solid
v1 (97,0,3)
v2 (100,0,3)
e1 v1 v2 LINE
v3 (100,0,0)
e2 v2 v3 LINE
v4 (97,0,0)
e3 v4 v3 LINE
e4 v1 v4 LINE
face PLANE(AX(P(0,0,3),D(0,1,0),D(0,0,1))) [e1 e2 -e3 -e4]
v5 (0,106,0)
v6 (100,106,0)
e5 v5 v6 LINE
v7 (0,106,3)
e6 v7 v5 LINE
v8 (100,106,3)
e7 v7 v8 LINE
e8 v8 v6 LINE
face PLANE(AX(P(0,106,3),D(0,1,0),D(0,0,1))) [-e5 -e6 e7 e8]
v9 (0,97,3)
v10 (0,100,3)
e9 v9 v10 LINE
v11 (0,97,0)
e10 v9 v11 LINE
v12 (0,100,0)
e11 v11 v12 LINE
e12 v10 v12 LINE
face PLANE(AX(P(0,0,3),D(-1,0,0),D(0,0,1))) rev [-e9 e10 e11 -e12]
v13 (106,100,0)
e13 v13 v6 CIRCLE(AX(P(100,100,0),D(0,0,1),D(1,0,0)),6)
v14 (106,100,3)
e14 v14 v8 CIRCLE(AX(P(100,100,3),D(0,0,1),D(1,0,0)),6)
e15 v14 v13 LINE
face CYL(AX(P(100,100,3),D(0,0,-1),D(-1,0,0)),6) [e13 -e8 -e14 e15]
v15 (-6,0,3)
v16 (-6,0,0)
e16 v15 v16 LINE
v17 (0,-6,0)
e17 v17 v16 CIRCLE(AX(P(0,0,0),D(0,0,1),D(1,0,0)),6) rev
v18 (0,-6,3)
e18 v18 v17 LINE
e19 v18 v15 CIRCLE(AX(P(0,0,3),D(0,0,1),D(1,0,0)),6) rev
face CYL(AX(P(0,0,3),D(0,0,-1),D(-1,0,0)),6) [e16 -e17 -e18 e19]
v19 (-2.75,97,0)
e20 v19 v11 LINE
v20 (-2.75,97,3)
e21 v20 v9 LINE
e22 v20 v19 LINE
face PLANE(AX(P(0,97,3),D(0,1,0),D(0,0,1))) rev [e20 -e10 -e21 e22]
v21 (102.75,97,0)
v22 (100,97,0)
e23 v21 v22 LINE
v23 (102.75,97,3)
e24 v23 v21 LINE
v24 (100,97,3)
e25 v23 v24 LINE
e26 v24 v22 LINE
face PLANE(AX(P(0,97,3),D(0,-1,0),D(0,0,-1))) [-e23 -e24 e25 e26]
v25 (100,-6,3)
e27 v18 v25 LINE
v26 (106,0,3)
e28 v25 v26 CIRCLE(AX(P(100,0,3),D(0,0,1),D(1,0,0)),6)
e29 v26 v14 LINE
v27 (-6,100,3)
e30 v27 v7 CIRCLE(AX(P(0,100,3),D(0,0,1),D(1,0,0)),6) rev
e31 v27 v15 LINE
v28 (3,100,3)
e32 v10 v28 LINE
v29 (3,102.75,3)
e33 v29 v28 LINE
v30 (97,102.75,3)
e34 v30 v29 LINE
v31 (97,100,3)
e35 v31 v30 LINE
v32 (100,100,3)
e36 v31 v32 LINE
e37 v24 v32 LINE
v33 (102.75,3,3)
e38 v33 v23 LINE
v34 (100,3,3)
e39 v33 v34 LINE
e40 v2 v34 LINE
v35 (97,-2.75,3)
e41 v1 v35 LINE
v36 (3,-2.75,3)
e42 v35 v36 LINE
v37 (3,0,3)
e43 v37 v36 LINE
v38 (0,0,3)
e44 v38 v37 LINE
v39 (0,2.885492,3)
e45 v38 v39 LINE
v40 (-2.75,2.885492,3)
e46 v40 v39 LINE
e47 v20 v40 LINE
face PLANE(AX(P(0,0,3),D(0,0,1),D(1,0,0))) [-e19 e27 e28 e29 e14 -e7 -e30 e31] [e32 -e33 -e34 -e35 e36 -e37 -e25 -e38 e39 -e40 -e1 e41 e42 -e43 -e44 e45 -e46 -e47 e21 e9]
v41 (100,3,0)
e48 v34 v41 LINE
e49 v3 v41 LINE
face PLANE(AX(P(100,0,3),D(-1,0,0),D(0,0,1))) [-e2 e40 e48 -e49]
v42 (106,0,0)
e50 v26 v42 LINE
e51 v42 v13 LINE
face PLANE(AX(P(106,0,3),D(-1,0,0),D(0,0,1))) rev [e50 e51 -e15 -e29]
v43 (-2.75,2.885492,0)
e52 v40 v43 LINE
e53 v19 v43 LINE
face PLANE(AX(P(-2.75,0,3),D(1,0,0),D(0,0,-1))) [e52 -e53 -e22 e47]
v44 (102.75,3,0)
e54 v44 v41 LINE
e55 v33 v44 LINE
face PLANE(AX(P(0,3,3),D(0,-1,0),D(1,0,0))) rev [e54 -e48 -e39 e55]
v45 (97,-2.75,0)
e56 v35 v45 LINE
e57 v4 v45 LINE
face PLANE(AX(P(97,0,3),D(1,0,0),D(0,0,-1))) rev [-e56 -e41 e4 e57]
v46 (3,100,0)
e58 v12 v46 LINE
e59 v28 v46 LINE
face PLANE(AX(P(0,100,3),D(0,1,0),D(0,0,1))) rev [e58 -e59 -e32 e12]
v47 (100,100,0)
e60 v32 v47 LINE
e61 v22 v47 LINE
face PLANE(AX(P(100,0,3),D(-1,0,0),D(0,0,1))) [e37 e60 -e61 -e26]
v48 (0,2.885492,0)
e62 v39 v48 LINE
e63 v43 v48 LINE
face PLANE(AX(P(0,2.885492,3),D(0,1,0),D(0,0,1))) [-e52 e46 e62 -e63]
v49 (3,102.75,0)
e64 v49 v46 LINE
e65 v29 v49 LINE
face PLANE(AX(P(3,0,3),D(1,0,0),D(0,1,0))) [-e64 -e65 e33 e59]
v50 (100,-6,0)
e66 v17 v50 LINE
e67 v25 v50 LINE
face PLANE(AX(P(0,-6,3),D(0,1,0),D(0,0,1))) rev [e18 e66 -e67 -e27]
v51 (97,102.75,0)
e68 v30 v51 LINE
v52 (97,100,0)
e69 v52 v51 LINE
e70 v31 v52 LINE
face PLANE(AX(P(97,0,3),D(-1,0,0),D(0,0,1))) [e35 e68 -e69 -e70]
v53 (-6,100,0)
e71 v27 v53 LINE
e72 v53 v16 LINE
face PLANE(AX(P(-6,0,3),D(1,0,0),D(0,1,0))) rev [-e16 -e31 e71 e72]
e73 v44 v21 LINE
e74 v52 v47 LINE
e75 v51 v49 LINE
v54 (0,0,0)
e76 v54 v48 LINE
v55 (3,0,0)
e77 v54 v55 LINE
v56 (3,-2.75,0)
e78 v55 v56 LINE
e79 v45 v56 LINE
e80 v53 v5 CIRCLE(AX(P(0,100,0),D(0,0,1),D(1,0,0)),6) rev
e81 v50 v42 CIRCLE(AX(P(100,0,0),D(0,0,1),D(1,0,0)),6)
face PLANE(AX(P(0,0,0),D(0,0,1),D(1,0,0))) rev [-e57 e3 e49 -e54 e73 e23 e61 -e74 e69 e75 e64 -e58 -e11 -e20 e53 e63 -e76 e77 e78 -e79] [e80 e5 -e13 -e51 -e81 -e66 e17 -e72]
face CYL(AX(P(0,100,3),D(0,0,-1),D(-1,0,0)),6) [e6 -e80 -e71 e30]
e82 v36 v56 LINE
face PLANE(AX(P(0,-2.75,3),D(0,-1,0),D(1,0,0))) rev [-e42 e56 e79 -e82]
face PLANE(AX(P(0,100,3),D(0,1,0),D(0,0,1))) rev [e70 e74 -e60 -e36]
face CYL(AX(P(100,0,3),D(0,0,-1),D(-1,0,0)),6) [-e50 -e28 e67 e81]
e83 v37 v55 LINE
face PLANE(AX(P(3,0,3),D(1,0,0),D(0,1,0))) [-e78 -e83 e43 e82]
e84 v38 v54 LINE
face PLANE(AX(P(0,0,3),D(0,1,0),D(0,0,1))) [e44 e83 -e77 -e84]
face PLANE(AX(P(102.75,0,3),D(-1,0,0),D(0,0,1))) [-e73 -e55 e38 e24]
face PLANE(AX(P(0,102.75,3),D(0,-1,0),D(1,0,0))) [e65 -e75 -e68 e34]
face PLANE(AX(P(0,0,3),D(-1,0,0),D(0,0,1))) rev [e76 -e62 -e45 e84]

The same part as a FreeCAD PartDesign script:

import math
import FreeCAD as App
import Part
import Sketcher
from FreeCAD import Vector


def add_polygon(sketch, points):
    """Adds a closed chain of lines whose ends are joined by coincident constraints."""
    first, n = sketch.GeometryCount, len(points)
    for a, b in zip(points, points[1:] + points[:1]):
        sketch.addGeometry(Part.LineSegment(App.Vector(*a, 0), App.Vector(*b, 0)), False)
    for i in range(n):
        sketch.addConstraint(Sketcher.Constraint("Coincident", first + i, 2, first + (i + 1) % n, 1))

doc = App.newDocument("Part")
body = doc.addObject("PartDesign::Body", "Body")

sketch1 = body.newObject("Sketcher::SketchObject", "Sketch")
sketch1.AttachmentSupport = (doc.getObject("XY_Plane"), [""])
sketch1.MapMode = "FlatFace"
sketch1.addGeometry(Part.ArcOfCircle(Part.Circle(Vector(0, 0, 0), Vector(0, 0, 1), 6), math.radians(180), math.radians(270)), False)
sketch1.addGeometry(Part.LineSegment(Vector(0, -6, 0), Vector(100, -6, 0)), False)
sketch1.addGeometry(Part.ArcOfCircle(Part.Circle(Vector(100, 0, 0), Vector(0, 0, 1), 6), math.radians(-90), math.radians(0)), False)
sketch1.addGeometry(Part.LineSegment(Vector(106, 0, 0), Vector(106, 100, 0)), False)
sketch1.addGeometry(Part.ArcOfCircle(Part.Circle(Vector(100, 100, 0), Vector(0, 0, 1), 6), math.radians(0), math.radians(90)), False)
sketch1.addGeometry(Part.LineSegment(Vector(100, 106, 0), Vector(0, 106, 0)), False)
sketch1.addGeometry(Part.ArcOfCircle(Part.Circle(Vector(0, 100, 0), Vector(0, 0, 1), 6), math.radians(90), math.radians(180)), False)
sketch1.addGeometry(Part.LineSegment(Vector(-6, 100, 0), Vector(-6, 0, 0)), False)
add_polygon(sketch1, [(100, 0), (97, 0), (97, -2.75), (3, -2.75), (3, 0), (0, 0), (0, 2.885492), (-2.75, 2.885492), (-2.75, 97), (0, 97), (0, 100), (3, 100), (3, 102.75), (97, 102.75), (97, 100), (100, 100), (100, 97), (102.75, 97), (102.75, 3), (100, 3)])
sketch1.addConstraint(Sketcher.Constraint("Tangent", 0, 2, 1, 1))
sketch1.addConstraint(Sketcher.Constraint("Tangent", 1, 2, 2, 1))
sketch1.addConstraint(Sketcher.Constraint("Tangent", 2, 2, 3, 1))
sketch1.addConstraint(Sketcher.Constraint("Tangent", 3, 2, 4, 1))
sketch1.addConstraint(Sketcher.Constraint("Tangent", 4, 2, 5, 1))
sketch1.addConstraint(Sketcher.Constraint("Tangent", 5, 2, 6, 1))
sketch1.addConstraint(Sketcher.Constraint("Tangent", 6, 2, 7, 1))
sketch1.addConstraint(Sketcher.Constraint("Tangent", 7, 2, 0, 1))
sketch1.addConstraint(Sketcher.Constraint("Horizontal", 1))
sketch1.addConstraint(Sketcher.Constraint("Vertical", 3))
sketch1.addConstraint(Sketcher.Constraint("Horizontal", 5))
sketch1.addConstraint(Sketcher.Constraint("Vertical", 7))
sketch1.addConstraint(Sketcher.Constraint("Horizontal", 8))
sketch1.addConstraint(Sketcher.Constraint("Vertical", 9))
sketch1.addConstraint(Sketcher.Constraint("Horizontal", 10))
sketch1.addConstraint(Sketcher.Constraint("Vertical", 11))
sketch1.addConstraint(Sketcher.Constraint("Horizontal", 12))
sketch1.addConstraint(Sketcher.Constraint("Vertical", 13))
sketch1.addConstraint(Sketcher.Constraint("Horizontal", 14))
sketch1.addConstraint(Sketcher.Constraint("Vertical", 15))
sketch1.addConstraint(Sketcher.Constraint("Horizontal", 16))
sketch1.addConstraint(Sketcher.Constraint("Vertical", 17))
sketch1.addConstraint(Sketcher.Constraint("Horizontal", 18))
sketch1.addConstraint(Sketcher.Constraint("Vertical", 19))
sketch1.addConstraint(Sketcher.Constraint("Horizontal", 20))
sketch1.addConstraint(Sketcher.Constraint("Vertical", 21))
sketch1.addConstraint(Sketcher.Constraint("Horizontal", 22))
sketch1.addConstraint(Sketcher.Constraint("Vertical", 23))
sketch1.addConstraint(Sketcher.Constraint("Horizontal", 24))
sketch1.addConstraint(Sketcher.Constraint("Vertical", 25))
sketch1.addConstraint(Sketcher.Constraint("Horizontal", 26))
sketch1.addConstraint(Sketcher.Constraint("Vertical", 27))
sketch1.addConstraint(Sketcher.Constraint("Coincident", 0, 3, -1, 1))
sketch1.addConstraint(Sketcher.Constraint("Coincident", 12, 2, -1, 1))
sketch1.addConstraint(Sketcher.Constraint("Coincident", 17, 2, 6, 3))
sketch1.addConstraint(Sketcher.Constraint("Coincident", 22, 2, 4, 3))
sketch1.addConstraint(Sketcher.Constraint("Coincident", 27, 2, 2, 3))
sketch1.addConstraint(Sketcher.Constraint("Equal", 0, 2))
sketch1.addConstraint(Sketcher.Constraint("Equal", 2, 4))
sketch1.addConstraint(Sketcher.Constraint("Equal", 4, 6))
sketch1.addConstraint(Sketcher.Constraint("Horizontal", 16, 2, 23, 2))
sketch1.addConstraint(Sketcher.Constraint("Vertical", 11, 2, 18, 2))
sketch1.addConstraint(Sketcher.Constraint("Vertical", 9, 2, 20, 2))
sketch1.addConstraint(Sketcher.Constraint("Equal", 8, 12))
sketch1.addConstraint(Sketcher.Constraint("Equal", 16, 24))
sketch1.addConstraint(Sketcher.Constraint("Equal", 5, 3))
sketch1.addConstraint(Sketcher.Constraint("Equal", 26, 9))
sketch1.addConstraint(Sketcher.Constraint("Equal", 22, 17))
sketch1.addConstraint(Sketcher.Constraint("Equal", 11, 19))
sketch1.addConstraint(Sketcher.Constraint("Equal", 20, 25))
sketch1.addConstraint(Sketcher.Constraint("Radius", 0, 6.0))
sketch1.addConstraint(Sketcher.Constraint("DistanceX", 1, 1, 1, 2, 100.0))
sketch1.addConstraint(Sketcher.Constraint("DistanceX", 8, 2, 8, 1, 3.0))
sketch1.addConstraint(Sketcher.Constraint("DistanceX", 14, 2, 14, 1, 2.75))
sketch1.addConstraint(Sketcher.Constraint("DistanceY", 13, 1, 13, 2, 2.885492))
pad1 = body.newObject("PartDesign::Pad", "Pad")
pad1.Profile = sketch1
pad1.Length = 3

doc.recompute()
